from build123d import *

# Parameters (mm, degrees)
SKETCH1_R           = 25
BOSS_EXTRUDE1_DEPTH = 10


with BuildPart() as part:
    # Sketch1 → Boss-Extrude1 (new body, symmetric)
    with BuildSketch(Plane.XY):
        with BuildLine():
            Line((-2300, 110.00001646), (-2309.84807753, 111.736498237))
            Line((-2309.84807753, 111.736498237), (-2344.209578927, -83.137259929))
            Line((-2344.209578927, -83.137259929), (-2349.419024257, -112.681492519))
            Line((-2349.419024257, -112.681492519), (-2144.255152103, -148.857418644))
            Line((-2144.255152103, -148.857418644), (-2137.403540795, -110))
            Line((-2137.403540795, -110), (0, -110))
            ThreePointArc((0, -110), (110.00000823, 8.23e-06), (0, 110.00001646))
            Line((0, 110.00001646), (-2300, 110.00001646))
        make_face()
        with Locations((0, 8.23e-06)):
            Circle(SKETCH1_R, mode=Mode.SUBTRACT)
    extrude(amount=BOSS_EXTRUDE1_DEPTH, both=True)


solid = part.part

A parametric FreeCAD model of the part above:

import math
import FreeCAD as App
import Part
import Sketcher

V = App.Vector
Q = App.Units.Quantity

doc = App.newDocument("Part")
body = doc.addObject("PartDesign::Body", "Body")

# Sketch on XY plane
sketch1 = body.newObject("Sketcher::SketchObject", "Sketch")
sketch1.AttachmentSupport = (doc.getObject("XY_Plane"), [""])
sketch1.MapMode = "FlatFace"
sketch1.addGeometry([
    Part.LineSegment(V(-2300, 110, 0), V(-2310, 112, 0)),  # 0
    Part.LineSegment(V(-2310, 112, 0), V(-2349, -113, 0)),  # 1
    Part.LineSegment(V(-2349, -113, 0), V(-2144, -149, 0)),  # 2
    Part.LineSegment(V(-2144, -149, 0), V(-2137, -110, 0)),  # 3
    Part.LineSegment(V(-2137, -110, 0), V(0, -110, 0)),  # 4
    Part.ArcOfCircle(Part.Circle(V(0, 0, 0), V(0, 0, 1), 110), math.radians(-90), math.radians(90)),  # 5
    Part.LineSegment(V(0, 110, 0), V(-2300, 110, 0)),  # 6
    Part.Circle(V(0, 0, 0), V(0, 0, 1), 25),  # 7
], False)
sketch1.addConstraint([
    Sketcher.Constraint("Coincident", 0, 2, 1, 1),
    Sketcher.Constraint("Coincident", 1, 2, 2, 1),
    Sketcher.Constraint("Coincident", 2, 2, 3, 1),
    Sketcher.Constraint("Coincident", 3, 2, 4, 1),
    Sketcher.Constraint("Tangent", 4, 2, 5, 1),
    Sketcher.Constraint("Tangent", 5, 2, 6, 1),
    Sketcher.Constraint("Coincident", 6, 2, 0, 1),
    Sketcher.Constraint("Horizontal", 4),
    Sketcher.Constraint("Horizontal", 6),
    Sketcher.Constraint("Coincident", 5, 3, -1, 1),
    Sketcher.Constraint("Coincident", 7, 3, -1, 1),
    Sketcher.Constraint("Perpendicular", 0, 1),
    Sketcher.Constraint("Perpendicular", 1, 2),
    Sketcher.Constraint("Perpendicular", 2, 3),
    Sketcher.Constraint("Diameter", 7, 50.0),
    Sketcher.Constraint("DistanceX", 6, 2, 6, 1, 2300.0),
    Sketcher.Constraint("Angle", 0, Q("170 deg")),
    Sketcher.Constraint("Distance", 0, 10.0),
    Sketcher.Constraint("DistanceY", 3, 2, -1, 1, 110.0),
    Sketcher.Constraint("Distance", 1, 227.88),
    Sketcher.Constraint("DistanceX", 4, 1, 4, 2, 2137.403541),
])
pad1 = body.newObject("PartDesign::Pad", "Pad")
pad1.Profile = sketch1
pad1.Length = 20
pad1.Midplane = True

doc.recompute()
